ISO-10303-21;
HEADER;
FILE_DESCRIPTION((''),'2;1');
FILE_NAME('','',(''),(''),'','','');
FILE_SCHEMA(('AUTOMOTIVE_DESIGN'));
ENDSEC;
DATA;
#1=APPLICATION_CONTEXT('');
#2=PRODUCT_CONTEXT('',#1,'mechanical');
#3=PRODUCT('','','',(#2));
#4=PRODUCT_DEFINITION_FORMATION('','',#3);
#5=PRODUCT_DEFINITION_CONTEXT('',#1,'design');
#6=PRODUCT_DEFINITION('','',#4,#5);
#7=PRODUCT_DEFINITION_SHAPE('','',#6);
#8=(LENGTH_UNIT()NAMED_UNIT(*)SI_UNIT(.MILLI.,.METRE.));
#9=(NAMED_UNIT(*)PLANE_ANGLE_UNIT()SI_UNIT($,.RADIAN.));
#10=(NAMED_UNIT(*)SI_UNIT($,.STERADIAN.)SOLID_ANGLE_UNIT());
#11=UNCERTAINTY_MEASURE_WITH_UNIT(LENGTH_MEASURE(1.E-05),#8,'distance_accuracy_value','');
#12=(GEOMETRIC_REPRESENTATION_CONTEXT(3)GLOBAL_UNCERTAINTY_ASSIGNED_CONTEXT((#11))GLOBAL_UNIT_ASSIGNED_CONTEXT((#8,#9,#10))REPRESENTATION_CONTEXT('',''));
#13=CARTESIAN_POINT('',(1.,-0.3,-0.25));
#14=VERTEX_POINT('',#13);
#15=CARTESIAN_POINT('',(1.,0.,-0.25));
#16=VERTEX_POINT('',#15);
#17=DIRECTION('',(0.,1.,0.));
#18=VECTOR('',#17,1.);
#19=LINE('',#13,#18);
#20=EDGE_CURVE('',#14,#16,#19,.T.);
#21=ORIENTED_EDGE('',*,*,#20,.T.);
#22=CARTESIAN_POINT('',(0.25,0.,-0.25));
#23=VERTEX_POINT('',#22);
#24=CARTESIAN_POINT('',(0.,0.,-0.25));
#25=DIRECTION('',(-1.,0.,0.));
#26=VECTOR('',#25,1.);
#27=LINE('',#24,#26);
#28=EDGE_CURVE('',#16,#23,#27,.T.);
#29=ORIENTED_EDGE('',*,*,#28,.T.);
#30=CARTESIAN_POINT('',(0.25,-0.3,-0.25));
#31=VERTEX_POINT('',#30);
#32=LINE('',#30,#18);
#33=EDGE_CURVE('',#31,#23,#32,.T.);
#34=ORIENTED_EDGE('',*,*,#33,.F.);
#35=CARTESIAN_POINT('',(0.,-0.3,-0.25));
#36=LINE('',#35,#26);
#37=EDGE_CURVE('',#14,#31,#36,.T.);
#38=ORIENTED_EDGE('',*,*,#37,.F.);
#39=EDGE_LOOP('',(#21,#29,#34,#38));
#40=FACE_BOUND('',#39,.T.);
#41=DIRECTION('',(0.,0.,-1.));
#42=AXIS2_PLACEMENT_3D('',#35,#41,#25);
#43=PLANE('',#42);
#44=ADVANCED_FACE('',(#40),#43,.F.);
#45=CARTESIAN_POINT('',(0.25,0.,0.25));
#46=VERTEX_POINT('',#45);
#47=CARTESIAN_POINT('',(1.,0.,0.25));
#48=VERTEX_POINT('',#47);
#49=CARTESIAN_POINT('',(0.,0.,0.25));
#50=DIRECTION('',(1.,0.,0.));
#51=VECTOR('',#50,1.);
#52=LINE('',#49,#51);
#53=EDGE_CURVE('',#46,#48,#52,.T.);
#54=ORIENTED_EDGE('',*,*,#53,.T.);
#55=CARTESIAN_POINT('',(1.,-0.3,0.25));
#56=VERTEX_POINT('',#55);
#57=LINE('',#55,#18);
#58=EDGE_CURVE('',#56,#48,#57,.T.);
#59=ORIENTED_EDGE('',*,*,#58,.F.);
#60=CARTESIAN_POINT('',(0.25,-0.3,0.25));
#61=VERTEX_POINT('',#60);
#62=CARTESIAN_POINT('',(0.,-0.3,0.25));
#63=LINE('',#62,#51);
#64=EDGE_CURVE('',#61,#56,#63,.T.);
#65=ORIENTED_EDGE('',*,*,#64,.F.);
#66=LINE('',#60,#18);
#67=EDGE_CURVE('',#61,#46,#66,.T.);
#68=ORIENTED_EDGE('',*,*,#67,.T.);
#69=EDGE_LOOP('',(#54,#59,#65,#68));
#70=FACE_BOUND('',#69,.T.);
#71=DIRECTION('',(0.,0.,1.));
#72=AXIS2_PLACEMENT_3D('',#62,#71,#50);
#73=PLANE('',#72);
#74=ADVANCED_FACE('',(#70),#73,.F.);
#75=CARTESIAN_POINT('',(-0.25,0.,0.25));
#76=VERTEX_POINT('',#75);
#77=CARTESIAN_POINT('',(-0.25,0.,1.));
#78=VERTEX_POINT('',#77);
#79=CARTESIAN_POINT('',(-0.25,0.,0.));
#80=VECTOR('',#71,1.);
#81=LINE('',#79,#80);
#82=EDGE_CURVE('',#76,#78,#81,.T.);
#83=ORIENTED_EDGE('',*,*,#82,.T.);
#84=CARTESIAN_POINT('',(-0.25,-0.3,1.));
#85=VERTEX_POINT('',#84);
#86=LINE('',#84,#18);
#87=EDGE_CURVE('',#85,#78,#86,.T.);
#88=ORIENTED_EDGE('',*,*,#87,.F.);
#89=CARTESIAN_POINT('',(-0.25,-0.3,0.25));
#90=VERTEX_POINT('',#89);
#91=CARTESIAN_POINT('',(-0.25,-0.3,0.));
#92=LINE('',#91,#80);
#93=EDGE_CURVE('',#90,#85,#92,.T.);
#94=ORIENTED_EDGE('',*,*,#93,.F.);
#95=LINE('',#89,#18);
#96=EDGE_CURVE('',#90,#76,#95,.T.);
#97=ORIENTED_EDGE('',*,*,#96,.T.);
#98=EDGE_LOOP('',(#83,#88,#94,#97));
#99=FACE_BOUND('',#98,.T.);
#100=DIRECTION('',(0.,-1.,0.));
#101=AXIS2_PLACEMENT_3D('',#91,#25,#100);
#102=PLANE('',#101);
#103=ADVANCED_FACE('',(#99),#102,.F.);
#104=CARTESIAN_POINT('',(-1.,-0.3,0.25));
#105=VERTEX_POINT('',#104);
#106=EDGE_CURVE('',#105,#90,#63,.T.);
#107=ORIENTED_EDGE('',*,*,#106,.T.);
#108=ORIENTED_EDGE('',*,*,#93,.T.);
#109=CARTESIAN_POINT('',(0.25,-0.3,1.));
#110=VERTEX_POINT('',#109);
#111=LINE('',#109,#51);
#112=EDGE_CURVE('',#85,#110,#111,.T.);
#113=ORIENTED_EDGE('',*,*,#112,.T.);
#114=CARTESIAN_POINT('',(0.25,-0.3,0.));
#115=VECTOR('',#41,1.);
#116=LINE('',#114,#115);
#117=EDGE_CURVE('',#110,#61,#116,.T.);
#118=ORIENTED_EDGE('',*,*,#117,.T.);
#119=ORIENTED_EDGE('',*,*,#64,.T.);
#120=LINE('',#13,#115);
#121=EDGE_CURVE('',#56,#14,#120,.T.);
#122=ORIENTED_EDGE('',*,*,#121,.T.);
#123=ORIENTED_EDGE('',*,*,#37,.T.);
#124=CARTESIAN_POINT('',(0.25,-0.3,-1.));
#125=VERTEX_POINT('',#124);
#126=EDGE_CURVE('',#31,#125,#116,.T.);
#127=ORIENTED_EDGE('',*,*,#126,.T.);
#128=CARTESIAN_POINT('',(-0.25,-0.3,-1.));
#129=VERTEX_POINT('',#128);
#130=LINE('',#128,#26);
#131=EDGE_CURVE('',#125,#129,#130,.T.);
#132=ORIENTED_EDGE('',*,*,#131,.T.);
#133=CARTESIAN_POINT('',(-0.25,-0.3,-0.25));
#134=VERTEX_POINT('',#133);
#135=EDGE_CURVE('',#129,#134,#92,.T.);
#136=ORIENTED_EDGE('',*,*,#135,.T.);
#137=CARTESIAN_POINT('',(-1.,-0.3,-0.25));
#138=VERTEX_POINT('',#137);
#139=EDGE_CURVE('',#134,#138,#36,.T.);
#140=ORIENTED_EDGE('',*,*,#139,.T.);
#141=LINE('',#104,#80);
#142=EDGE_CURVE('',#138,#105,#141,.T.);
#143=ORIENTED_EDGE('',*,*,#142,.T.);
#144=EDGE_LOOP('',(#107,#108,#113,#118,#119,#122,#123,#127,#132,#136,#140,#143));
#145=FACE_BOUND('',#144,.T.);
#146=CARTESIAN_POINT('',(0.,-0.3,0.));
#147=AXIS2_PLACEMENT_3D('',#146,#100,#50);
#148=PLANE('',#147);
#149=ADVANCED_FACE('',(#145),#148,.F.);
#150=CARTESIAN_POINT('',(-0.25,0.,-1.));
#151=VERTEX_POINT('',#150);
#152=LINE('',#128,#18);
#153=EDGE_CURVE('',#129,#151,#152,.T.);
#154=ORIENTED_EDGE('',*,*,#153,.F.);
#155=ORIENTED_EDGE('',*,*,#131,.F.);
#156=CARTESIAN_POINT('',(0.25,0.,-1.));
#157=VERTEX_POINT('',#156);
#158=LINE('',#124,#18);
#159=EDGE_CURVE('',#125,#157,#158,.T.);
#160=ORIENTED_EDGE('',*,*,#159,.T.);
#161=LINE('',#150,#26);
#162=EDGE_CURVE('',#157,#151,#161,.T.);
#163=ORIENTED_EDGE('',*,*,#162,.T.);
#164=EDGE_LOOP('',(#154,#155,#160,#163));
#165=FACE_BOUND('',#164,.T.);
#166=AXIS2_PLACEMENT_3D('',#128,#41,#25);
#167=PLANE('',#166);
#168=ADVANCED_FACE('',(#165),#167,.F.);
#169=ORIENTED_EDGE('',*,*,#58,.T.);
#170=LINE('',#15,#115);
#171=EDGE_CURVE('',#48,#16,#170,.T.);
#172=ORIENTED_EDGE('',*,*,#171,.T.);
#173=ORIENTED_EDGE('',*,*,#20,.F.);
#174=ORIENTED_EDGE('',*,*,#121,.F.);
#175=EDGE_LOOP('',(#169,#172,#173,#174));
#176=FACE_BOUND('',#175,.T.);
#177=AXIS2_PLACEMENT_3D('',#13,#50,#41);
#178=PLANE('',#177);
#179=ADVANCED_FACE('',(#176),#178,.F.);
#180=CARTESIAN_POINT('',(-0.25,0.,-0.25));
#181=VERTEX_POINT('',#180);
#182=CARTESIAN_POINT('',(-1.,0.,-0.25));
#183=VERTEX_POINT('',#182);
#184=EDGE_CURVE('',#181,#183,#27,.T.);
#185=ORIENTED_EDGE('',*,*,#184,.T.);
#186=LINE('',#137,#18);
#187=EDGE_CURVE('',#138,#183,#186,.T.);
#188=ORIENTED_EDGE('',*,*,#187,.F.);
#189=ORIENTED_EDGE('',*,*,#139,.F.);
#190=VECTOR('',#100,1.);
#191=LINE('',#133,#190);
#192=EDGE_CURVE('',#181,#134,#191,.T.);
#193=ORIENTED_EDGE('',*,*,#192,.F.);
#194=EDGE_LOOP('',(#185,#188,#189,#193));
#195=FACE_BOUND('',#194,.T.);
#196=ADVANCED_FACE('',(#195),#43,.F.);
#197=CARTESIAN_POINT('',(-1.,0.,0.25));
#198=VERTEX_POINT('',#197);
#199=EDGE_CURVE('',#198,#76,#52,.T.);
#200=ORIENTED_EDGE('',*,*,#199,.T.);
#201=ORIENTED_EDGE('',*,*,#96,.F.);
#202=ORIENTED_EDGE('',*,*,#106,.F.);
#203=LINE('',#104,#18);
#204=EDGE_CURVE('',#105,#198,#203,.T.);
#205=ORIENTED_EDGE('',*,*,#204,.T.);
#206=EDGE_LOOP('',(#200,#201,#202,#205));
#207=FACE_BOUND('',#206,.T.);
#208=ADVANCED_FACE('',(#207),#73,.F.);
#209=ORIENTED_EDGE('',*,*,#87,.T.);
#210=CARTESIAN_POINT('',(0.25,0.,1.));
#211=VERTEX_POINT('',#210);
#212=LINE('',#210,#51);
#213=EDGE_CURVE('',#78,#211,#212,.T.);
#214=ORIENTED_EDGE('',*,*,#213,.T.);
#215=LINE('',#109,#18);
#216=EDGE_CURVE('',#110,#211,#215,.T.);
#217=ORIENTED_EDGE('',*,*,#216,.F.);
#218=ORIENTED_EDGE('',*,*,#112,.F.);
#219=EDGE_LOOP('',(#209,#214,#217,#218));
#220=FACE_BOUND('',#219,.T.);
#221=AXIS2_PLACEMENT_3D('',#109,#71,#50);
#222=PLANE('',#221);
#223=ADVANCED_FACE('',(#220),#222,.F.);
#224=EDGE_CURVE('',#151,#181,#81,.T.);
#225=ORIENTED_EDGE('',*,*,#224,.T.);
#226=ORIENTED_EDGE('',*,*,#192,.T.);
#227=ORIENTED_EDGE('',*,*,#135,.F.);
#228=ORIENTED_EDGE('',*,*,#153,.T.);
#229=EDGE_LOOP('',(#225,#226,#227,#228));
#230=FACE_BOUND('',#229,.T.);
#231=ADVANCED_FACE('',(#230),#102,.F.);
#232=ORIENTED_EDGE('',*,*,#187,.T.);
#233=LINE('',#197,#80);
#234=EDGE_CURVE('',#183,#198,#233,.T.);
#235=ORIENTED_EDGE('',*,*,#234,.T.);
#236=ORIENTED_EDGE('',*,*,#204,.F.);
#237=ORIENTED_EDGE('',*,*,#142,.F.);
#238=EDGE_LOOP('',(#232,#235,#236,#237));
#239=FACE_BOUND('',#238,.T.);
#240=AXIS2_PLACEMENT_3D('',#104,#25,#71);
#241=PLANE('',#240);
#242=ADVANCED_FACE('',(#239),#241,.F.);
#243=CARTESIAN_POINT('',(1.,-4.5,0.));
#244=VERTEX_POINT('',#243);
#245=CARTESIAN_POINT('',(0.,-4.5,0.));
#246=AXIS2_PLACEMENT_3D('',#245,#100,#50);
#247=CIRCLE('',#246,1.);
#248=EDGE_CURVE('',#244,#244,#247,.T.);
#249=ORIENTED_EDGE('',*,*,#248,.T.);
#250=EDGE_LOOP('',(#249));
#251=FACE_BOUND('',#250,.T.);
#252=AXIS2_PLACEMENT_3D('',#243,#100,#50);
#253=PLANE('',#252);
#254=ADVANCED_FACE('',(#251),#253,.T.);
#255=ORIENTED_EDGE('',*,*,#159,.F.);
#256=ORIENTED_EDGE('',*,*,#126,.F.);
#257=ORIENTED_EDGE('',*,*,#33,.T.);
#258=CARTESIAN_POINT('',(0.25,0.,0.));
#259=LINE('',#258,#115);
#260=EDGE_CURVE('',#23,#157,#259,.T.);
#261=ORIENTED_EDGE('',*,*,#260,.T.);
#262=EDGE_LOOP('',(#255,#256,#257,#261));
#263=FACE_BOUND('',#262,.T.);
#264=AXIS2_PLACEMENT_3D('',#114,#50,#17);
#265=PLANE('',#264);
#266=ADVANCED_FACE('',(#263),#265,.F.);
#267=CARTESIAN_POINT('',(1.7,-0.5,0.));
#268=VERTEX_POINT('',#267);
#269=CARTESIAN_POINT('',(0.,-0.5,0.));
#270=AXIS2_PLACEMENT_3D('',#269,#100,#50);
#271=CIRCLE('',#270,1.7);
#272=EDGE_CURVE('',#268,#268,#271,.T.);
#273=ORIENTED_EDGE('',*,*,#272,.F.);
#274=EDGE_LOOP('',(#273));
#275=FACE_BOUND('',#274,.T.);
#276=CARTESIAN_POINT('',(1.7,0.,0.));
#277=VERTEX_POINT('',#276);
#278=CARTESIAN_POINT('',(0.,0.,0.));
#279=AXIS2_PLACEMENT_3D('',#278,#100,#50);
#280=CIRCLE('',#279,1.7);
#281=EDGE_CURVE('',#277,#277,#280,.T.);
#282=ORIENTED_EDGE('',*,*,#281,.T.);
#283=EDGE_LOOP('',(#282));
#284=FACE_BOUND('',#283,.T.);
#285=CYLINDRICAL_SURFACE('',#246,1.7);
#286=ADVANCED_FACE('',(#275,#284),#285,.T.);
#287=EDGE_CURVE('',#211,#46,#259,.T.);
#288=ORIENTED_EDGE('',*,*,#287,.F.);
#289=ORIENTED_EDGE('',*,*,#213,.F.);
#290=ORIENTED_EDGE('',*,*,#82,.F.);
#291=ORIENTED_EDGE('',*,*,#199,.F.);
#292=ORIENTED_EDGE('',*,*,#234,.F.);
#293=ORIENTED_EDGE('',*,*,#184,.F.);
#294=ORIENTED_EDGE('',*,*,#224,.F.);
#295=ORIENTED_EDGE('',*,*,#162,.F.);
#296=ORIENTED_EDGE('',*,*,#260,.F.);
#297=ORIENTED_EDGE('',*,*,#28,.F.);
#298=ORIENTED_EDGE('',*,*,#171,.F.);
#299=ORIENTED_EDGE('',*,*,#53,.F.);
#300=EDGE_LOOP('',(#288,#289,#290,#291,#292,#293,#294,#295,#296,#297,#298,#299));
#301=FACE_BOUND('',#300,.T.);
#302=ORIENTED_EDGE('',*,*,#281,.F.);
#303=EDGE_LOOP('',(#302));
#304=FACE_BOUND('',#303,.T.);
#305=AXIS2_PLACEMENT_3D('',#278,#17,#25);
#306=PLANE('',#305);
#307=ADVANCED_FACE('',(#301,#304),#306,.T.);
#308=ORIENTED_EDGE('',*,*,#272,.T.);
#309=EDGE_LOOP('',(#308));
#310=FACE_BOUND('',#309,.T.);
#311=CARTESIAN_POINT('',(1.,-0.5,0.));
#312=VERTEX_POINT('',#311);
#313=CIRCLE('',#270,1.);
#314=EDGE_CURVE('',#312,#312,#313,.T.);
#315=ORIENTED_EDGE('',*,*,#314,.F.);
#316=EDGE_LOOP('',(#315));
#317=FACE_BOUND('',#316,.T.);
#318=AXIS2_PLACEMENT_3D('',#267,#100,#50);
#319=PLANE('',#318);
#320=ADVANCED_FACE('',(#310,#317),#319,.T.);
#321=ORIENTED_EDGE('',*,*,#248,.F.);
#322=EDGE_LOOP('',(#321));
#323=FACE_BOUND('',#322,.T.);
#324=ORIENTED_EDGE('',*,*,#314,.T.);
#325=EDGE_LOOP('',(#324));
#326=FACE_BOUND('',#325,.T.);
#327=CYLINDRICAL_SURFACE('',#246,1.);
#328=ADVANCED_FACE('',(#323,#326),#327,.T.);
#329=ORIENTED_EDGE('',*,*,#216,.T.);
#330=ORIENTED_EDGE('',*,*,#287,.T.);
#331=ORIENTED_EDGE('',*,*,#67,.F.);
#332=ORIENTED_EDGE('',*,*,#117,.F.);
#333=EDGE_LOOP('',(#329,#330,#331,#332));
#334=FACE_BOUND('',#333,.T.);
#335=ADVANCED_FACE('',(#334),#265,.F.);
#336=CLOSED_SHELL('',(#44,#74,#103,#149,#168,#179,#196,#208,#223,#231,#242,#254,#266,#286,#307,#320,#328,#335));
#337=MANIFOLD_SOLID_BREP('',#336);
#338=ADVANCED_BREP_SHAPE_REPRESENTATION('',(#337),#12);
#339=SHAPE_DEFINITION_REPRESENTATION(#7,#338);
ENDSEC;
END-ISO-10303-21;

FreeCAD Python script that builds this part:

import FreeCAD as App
import Part
import Sketcher
from FreeCAD import Vector
Q = App.Units.Quantity

doc = App.newDocument("Part")
body = doc.addObject("PartDesign::Body", "Body")

# Sketch on XY plane
sketch1 = body.newObject("Sketcher::SketchObject", "Sketch")
sketch1.AttachmentSupport = (doc.getObject("XY_Plane"), [""])
sketch1.MapMode = "FlatFace"
sketch1.addGeometry([
    Part.LineSegment(Vector(1.7, 0, 0), Vector(0, 0, 0)),  # 0
    Part.LineSegment(Vector(0, 0, 0), Vector(0, -4.5, 0)),  # 1
    Part.LineSegment(Vector(0, -4.5, 0), Vector(1, -4.5, 0)),  # 2
    Part.LineSegment(Vector(1, -4.5, 0), Vector(1, -0.5, 0)),  # 3
    Part.LineSegment(Vector(1, -0.5, 0), Vector(1.7, -0.5, 0)),  # 4
    Part.LineSegment(Vector(1.7, -0.5, 0), Vector(1.7, 0, 0)),  # 5
], False)
sketch1.addConstraint([
    Sketcher.Constraint("Coincident", 0, 2, 1, 1),
    Sketcher.Constraint("Coincident", 1, 2, 2, 1),
    Sketcher.Constraint("Coincident", 2, 2, 3, 1),
    Sketcher.Constraint("Coincident", 3, 2, 4, 1),
    Sketcher.Constraint("Coincident", 4, 2, 5, 1),
    Sketcher.Constraint("Coincident", 5, 2, 0, 1),
    Sketcher.Constraint("Horizontal", 0),
    Sketcher.Constraint("Vertical", 1),
    Sketcher.Constraint("Horizontal", 2),
    Sketcher.Constraint("Vertical", 3),
    Sketcher.Constraint("Horizontal", 4),
    Sketcher.Constraint("Vertical", 5),
    Sketcher.Constraint("Coincident", 0, 2, -1, 1),
    Sketcher.Constraint("DistanceX", 2, 1, 2, 2, Q("1 mm")),
    Sketcher.Constraint("DistanceY", 3, 1, 3, 2, Q("4 mm")),
    Sketcher.Constraint("DistanceX", 0, 2, 0, 1, Q("1.7 mm")),
    Sketcher.Constraint("DistanceY", 1, 2, 1, 1, Q("4.5 mm")),
])
revolution = body.newObject("PartDesign::Revolution", "Revolution")
revolution.Profile = sketch1
revolution.ReferenceAxis = (sketch1, ["V_Axis"])
revolution.Angle = 360

# Sketch on XZ plane
sketch2 = body.newObject("Sketcher::SketchObject", "Sketch001")
sketch2.AttachmentSupport = (doc.getObject("XZ_Plane"), [""])
sketch2.MapMode = "FlatFace"
sketch2.addGeometry([
    Part.LineSegment(Vector(-0.25, -1, 0), Vector(-0.25, 0, 0)),
    Part.LineSegment(Vector(-0.25, 0, 0), Vector(0.25, 0, 0)),
    Part.LineSegment(Vector(0.25, 0, 0), Vector(0.25, -1, 0)),
    Part.LineSegment(Vector(0.25, -1, 0), Vector(-0.25, -1, 0)),
], False)
sketch2.addConstraint([
    Sketcher.Constraint("Coincident", 0, 2, 1, 1),
    Sketcher.Constraint("Coincident", 1, 2, 2, 1),
    Sketcher.Constraint("Coincident", 2, 2, 3, 1),
    Sketcher.Constraint("Coincident", 3, 2, 0, 1),
    Sketcher.Constraint("Vertical", 0),
    Sketcher.Constraint("Horizontal", 1),
    Sketcher.Constraint("Vertical", 2),
    Sketcher.Constraint("Horizontal", 3),
    Sketcher.Constraint("Symmetric", 0, 2, 1, 2, -1, 1),
    Sketcher.Constraint("DistanceY", 0, 1, 0, 2, Q("1 mm")),
    Sketcher.Constraint("DistanceX", 1, 1, 1, 2, Q("0.5 mm")),
])
pocket1 = body.newObject("PartDesign::Pocket", "Pocket")
pocket1.Profile = sketch2
pocket1.Length = 0.3
pocket1.Reversed = True
doc.recompute()

polarpattern = body.newObject("PartDesign::PolarPattern", "PolarPattern")
polarpattern.Originals = [pocket1]
polarpattern.Axis = (doc.getObject("Y_Axis"), [""])
polarpattern.Angle = 360
polarpattern.Occurrences = 4
body.Tip = polarpattern

doc.recompute()
